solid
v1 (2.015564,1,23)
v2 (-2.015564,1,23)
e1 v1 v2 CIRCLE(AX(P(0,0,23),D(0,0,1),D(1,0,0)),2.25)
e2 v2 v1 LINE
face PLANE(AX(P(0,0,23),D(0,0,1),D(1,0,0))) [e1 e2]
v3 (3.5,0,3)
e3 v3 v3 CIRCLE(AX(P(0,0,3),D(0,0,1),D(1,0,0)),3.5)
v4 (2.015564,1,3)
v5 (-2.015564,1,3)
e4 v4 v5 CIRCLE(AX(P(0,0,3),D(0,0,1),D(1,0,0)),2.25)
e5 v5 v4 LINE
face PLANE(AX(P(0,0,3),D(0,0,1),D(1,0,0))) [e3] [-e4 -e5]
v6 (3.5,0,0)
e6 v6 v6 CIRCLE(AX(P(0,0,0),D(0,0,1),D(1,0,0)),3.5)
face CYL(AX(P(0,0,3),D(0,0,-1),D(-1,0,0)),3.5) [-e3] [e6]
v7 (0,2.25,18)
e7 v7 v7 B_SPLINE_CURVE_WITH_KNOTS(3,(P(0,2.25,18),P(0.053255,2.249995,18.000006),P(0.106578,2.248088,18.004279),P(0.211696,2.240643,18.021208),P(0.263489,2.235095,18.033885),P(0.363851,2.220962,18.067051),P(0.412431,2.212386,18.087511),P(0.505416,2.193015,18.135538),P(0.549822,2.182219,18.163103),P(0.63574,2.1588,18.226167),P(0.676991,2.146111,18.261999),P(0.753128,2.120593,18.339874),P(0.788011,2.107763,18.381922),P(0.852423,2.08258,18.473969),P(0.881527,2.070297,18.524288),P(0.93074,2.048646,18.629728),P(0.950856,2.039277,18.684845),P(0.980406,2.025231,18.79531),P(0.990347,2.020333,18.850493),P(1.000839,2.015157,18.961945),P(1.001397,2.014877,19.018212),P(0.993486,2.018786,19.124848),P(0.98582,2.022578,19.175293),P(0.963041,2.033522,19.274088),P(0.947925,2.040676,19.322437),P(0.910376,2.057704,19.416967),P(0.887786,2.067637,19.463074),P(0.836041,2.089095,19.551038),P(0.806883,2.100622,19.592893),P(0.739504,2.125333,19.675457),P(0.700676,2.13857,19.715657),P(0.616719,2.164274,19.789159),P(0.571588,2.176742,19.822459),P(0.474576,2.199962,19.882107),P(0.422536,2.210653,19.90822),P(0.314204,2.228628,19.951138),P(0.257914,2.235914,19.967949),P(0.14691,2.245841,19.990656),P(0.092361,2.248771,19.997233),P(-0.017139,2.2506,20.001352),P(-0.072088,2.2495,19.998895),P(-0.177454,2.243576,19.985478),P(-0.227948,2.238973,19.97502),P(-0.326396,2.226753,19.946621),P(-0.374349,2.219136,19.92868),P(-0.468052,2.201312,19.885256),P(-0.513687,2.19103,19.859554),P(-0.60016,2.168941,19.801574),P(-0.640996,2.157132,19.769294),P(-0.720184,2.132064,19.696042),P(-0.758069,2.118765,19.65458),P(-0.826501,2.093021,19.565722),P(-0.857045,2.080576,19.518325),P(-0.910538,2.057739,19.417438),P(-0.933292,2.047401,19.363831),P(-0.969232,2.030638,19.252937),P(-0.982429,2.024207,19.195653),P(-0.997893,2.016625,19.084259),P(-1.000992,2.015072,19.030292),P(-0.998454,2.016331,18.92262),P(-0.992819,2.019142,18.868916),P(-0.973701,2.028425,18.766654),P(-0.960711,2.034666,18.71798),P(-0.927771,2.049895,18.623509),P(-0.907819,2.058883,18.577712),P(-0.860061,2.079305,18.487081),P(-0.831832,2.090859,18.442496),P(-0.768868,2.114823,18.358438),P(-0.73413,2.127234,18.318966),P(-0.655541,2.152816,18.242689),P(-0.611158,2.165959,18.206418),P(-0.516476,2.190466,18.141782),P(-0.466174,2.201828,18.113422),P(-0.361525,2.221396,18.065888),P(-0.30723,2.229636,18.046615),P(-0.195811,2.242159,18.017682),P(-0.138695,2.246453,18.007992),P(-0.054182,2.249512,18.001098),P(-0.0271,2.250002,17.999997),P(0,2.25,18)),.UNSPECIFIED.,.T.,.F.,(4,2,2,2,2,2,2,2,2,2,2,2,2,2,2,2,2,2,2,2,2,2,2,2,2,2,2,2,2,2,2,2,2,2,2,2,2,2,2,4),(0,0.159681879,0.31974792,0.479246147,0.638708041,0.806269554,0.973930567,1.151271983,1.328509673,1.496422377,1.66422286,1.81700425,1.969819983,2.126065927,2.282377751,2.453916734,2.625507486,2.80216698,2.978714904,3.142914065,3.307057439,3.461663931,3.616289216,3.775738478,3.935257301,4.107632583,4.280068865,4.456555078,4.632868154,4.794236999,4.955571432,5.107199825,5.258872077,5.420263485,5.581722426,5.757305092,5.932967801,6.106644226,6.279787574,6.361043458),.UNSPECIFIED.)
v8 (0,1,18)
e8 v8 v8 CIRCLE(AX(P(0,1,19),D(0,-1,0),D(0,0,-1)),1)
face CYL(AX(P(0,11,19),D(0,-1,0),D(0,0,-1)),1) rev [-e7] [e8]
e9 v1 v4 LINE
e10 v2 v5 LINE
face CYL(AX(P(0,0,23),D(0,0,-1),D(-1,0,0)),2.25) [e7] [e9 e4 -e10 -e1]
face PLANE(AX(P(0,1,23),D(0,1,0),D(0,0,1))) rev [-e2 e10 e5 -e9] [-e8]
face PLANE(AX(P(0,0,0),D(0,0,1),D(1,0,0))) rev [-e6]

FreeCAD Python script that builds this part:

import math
import FreeCAD as App
import Part
import Sketcher
from FreeCAD import Vector

doc = App.newDocument("Part")
body = doc.addObject("PartDesign::Body", "Body")

# Sketch on XY plane
sketch1 = doc.addObject("Sketcher::SketchObject", "Sketch")
body.addObject(sketch1)
sketch1.AttachmentSupport = (doc.XY_Plane, [""])
sketch1.MapMode = "FlatFace"
sketch1.addGeometry([
    Part.ArcOfCircle(Part.Circle(Vector(0, 0, 0), Vector(0, 0, 1), 3.5), math.radians(17), math.radians(163)),
    Part.ArcOfCircle(Part.Circle(Vector(0, 0, 0), Vector(0, 0, 1), 3.5), math.radians(163), math.radians(360)),
    Part.ArcOfCircle(Part.Circle(Vector(0, 0, 0), Vector(0, 0, 1), 3.5), math.radians(0), math.radians(16.6)),
], False)
sketch1.addConstraint([
    Sketcher.Constraint("Tangent", 0, 2, 1, 1),
    Sketcher.Constraint("Tangent", 1, 2, 2, 1),
    Sketcher.Constraint("Tangent", 2, 2, 0, 1),
    Sketcher.Constraint("Coincident", 0, 3, -1, 1),
    Sketcher.Constraint("PointOnObject", 1, 2, -1),
    Sketcher.Constraint("Horizontal", 0, 2, 2, 2),
    Sketcher.Constraint("Radius", 0, 3.5),
    Sketcher.Constraint("DistanceY", -1, 1, 0, 2, 1.0),
])
pad1 = doc.addObject("PartDesign::Pad", "Pad")
body.addObject(pad1)
pad1.Profile = sketch1
pad1.Length = 3

# Sketch on XY plane
sketch2 = doc.addObject("Sketcher::SketchObject", "Sketch001")
body.addObject(sketch2)
sketch2.AttachmentSupport = (doc.XY_Plane, [""])
sketch2.MapMode = "FlatFace"
sketch2.AttachmentOffset = App.Placement(Vector(0, 0, 3), App.Rotation())
sketch2.addGeometry([
    Part.ArcOfCircle(Part.Circle(Vector(0, 0, 0), Vector(0, 0, 1), 2.2), math.radians(26), math.radians(154)),
    Part.LineSegment(Vector(-2, 1, 0), Vector(2, 1, 0)),
], False)
sketch2.addConstraint([
    Sketcher.Constraint("Coincident", 0, 1, 1, 2),
    Sketcher.Constraint("Coincident", 1, 1, 0, 2),
    Sketcher.Constraint("Horizontal", 1),
    Sketcher.Constraint("Coincident", 0, 3, -1, 1),
    Sketcher.Constraint("Radius", 0, 2.25),
    Sketcher.Constraint("DistanceY", -1, 1, 0, 1, 1.0),
])
pad2 = doc.addObject("PartDesign::Pad", "Pad001")
body.addObject(pad2)
pad2.Profile = sketch2
pad2.Length = 20

# Sketch on XZ plane
sketch3 = doc.addObject("Sketcher::SketchObject", "Sketch002")
body.addObject(sketch3)
sketch3.AttachmentSupport = (doc.XZ_Plane, [""])
sketch3.MapMode = "FlatFace"
sketch3.AttachmentOffset = App.Placement(Vector(0, 0, -1), App.Rotation())
sketch3.addGeometry(Part.Circle(Vector(0, 19, 0), Vector(0, 0, 1), 1), False)
sketch3.addConstraint([
    Sketcher.Constraint("PointOnObject", 0, 3, -2),
    Sketcher.Constraint("Diameter", 0, 2.0),
    Sketcher.Constraint("DistanceY", -1, 1, 0, 3, 19.0),
])
pocket1 = doc.addObject("PartDesign::Pocket", "Pocket")
body.addObject(pocket1)
pocket1.Profile = sketch3
pocket1.Length = 10

doc.recompute()
